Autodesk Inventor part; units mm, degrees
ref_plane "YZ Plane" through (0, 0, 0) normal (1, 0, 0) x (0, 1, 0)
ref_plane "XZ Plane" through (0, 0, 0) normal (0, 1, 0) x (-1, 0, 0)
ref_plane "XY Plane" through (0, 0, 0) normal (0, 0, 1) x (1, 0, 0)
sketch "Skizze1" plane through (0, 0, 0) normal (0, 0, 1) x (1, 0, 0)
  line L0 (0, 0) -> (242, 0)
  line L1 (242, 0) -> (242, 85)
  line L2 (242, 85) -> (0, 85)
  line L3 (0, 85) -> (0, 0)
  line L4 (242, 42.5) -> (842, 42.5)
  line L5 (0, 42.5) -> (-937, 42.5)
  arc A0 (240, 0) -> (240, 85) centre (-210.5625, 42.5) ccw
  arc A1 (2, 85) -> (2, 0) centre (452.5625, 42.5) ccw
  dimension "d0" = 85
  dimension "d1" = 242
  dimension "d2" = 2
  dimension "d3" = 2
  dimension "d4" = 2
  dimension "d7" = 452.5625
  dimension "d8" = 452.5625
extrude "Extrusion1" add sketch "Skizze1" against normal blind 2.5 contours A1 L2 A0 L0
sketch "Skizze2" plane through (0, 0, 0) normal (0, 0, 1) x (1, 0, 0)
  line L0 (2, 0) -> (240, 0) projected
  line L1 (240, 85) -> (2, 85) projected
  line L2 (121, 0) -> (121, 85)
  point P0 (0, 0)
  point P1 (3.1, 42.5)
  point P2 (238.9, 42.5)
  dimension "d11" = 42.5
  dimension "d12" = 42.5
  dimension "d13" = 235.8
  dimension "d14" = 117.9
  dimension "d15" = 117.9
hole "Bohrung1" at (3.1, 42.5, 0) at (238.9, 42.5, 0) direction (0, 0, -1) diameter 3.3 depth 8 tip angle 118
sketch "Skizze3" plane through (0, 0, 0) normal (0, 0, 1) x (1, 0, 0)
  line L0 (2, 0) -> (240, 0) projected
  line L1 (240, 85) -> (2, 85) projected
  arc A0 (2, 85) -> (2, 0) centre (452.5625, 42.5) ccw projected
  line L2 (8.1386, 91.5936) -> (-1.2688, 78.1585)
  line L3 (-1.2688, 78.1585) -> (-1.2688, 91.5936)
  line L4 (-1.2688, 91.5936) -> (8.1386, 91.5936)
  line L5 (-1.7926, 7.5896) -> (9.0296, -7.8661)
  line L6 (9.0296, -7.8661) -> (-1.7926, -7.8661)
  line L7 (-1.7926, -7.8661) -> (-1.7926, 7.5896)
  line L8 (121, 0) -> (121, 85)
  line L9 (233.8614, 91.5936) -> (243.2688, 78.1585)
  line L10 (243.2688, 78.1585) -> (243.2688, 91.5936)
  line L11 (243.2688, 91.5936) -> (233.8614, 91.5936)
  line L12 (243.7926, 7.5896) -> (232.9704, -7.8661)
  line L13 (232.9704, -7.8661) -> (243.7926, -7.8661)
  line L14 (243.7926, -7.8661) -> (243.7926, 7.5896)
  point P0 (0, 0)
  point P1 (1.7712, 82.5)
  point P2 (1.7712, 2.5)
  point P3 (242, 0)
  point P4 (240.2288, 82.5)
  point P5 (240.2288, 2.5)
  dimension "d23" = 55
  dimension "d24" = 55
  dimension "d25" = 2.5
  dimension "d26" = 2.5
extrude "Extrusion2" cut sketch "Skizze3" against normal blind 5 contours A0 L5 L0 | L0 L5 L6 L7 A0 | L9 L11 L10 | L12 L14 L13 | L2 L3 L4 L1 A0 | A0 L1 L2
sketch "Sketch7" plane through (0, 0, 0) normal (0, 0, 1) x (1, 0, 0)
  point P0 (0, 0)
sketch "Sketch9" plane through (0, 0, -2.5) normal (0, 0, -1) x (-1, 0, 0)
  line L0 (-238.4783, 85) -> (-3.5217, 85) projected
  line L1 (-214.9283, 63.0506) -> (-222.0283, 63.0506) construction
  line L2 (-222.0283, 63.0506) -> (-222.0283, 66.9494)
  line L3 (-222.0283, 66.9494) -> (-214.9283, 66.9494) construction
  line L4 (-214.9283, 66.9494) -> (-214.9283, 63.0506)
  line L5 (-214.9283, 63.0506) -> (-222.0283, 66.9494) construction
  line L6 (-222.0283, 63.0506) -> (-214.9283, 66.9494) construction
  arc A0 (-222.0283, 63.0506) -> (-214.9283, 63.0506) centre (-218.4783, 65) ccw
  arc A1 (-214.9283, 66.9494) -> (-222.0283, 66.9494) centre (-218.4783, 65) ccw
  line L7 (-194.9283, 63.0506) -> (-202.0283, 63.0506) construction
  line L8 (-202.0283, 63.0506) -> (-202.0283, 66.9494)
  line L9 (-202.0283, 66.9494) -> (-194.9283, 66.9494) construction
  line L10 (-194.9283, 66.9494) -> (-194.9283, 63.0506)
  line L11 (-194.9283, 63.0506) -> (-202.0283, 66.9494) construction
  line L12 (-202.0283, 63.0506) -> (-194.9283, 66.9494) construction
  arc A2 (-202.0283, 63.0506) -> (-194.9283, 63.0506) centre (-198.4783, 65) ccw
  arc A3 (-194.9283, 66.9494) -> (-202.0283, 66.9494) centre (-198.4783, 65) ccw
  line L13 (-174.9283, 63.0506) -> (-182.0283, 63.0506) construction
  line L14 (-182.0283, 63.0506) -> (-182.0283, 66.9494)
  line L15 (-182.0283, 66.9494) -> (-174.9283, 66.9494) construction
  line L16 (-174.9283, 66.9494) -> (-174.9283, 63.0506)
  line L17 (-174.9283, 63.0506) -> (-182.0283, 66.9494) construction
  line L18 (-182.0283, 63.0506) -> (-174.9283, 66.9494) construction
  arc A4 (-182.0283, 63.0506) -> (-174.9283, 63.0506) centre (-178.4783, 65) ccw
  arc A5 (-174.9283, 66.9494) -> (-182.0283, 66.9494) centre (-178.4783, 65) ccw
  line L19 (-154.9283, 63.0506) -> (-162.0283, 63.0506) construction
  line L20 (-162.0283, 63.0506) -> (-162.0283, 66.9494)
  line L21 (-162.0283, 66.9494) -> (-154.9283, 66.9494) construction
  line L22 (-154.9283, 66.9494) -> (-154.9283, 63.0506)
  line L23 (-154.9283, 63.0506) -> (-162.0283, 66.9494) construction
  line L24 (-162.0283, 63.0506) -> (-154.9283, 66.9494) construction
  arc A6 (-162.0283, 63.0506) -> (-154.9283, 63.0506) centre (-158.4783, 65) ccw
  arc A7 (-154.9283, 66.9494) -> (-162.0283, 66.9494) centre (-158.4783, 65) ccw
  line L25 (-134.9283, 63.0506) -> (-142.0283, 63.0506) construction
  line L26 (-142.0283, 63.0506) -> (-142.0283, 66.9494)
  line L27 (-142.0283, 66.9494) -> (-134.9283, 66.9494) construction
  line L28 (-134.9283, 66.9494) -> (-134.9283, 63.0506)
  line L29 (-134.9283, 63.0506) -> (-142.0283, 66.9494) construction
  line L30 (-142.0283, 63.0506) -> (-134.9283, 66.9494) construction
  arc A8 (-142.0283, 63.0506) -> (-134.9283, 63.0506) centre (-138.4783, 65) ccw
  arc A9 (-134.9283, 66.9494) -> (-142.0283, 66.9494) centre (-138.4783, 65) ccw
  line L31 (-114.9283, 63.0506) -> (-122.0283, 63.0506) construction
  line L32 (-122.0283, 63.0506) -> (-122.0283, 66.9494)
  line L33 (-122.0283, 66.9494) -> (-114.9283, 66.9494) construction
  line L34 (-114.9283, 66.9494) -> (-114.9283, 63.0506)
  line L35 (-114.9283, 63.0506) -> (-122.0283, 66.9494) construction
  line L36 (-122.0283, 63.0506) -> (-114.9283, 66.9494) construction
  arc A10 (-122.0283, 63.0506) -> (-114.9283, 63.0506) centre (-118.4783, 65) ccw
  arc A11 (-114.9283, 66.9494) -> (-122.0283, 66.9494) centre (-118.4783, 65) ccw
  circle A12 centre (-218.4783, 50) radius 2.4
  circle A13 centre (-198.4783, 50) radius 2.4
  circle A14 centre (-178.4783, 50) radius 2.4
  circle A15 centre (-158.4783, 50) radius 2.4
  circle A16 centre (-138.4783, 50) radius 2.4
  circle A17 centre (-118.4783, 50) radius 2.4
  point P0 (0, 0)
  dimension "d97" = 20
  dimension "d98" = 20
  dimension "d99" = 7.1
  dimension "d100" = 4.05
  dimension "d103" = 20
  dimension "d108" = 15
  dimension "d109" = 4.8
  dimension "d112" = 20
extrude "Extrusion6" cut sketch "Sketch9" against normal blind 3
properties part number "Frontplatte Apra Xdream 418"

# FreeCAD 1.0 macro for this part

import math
import FreeCAD as App
import Part
import Sketcher

V = App.Vector
Q = App.Units.Quantity


def add_polygon(sketch, points):
    """Adds a closed chain of lines whose ends are joined by coincident constraints."""
    first, n = sketch.GeometryCount, len(points)
    for a, b in zip(points, points[1:] + points[:1]):
        sketch.addGeometry(Part.LineSegment(App.Vector(*a, 0), App.Vector(*b, 0)), False)
    for i in range(n):
        sketch.addConstraint(Sketcher.Constraint("Coincident", first + i, 2, first + (i + 1) % n, 1))

doc = App.newDocument("Part")
body = doc.addObject("PartDesign::Body", "Body")

# Sketch on XY plane
sketch1 = body.newObject("Sketcher::SketchObject", "Sketch")
sketch1.AttachmentSupport = (doc.getObject("XY_Plane"), [""])
sketch1.MapMode = "FlatFace"
sketch1.addGeometry([
    Part.ArcOfCircle(Part.Circle(V(452.5625, 42.5, 0), V(0, 0, 1), 452.5625), math.radians(174.611431), math.radians(185.388569)),
    Part.LineSegment(V(2, 0, 0), V(240, 0, 0)),
    Part.ArcOfCircle(Part.Circle(V(-210.5625, 42.5, 0), V(0, 0, 1), 452.5625), math.radians(-5.388569), math.radians(5.388569)),
    Part.LineSegment(V(240, 85, 0), V(2, 85, 0)),
], False)
sketch1.addConstraint([
    Sketcher.Constraint("Coincident", 0, 2, 1, 1),
    Sketcher.Constraint("Coincident", 1, 2, 2, 1),
    Sketcher.Constraint("Coincident", 2, 2, 3, 1),
    Sketcher.Constraint("Coincident", 3, 2, 0, 1),
    Sketcher.Constraint("Horizontal", 1),
    Sketcher.Constraint("Horizontal", 3),
    Sketcher.Constraint("Equal", 0, 2),
    Sketcher.Constraint("PointOnObject", 1, 2, -1),
    Sketcher.Constraint("Horizontal", 0, 3, 2, 3),
    Sketcher.Constraint("Vertical", 1, 2, 2, 2),
    Sketcher.Constraint("DistanceX", -1, 1, 0, 2, 2.0),
    Sketcher.Constraint("DistanceY", -1, 1, 3, 2, 85.0),
    Sketcher.Constraint("Radius", 0, 452.5625),
    Sketcher.Constraint("DistanceX", 1, 1, 1, 2, 238.0),
])
pad1 = body.newObject("PartDesign::Pad", "Pad")
pad1.Profile = sketch1
pad1.Length = 2.5
pad1.Reversed = True

# Sketch on XY plane
sketch2 = body.newObject("Sketcher::SketchObject", "Sketch001")
sketch2.AttachmentSupport = (doc.getObject("XY_Plane"), [""])
sketch2.MapMode = "FlatFace"
sketch2.addGeometry([
    Part.Circle(V(3.1, 42.5, 0), V(0, 0, 1), 1.65),
    Part.Circle(V(238.9, 42.5, 0), V(0, 0, 1), 1.65),
], False)
sketch2.addConstraint([
    Sketcher.Constraint("Equal", 0, 1),
    Sketcher.Constraint("Horizontal", 0, 3, 1, 3),
    Sketcher.Constraint("Diameter", 0, 3.3),
    Sketcher.Constraint("DistanceX", -1, 1, 0, 3, 3.1),
    Sketcher.Constraint("DistanceY", -1, 1, 0, 3, 42.5),
    Sketcher.Constraint("DistanceX", -1, 1, 1, 3, 238.9),
])
doc.recompute()
hole = body.newObject("PartDesign::Hole", "Hole")
hole.Profile = sketch2
hole.ThreadType = "None"
hole.Diameter = 3.3
hole.DepthType = "Dimension"
hole.Depth = 8
hole.DrillPoint = "Angled"
hole.DrillPointAngle = 118

# Sketch on XY plane
sketch3 = body.newObject("Sketcher::SketchObject", "Sketch002")
sketch3.AttachmentSupport = (doc.getObject("XY_Plane"), [""])
sketch3.MapMode = "FlatFace"
add_polygon(sketch3, [(-1.7926, 7.5896), (-1.7926, -7.8661), (9.0296, -7.8661)])  # lines 0-2
add_polygon(sketch3, [(233.8614, 91.5936), (243.2688, 78.1585), (243.2688, 91.5936)])  # lines 3-5
add_polygon(sketch3, [(243.7926, 7.5896), (232.9704, -7.8661), (243.7926, -7.8661)])  # lines 6-8
add_polygon(sketch3, [(-1.2688, 78.1585), (8.1386, 91.5936), (-1.2688, 91.5936)])  # lines 9-11
sketch3.addConstraint([
    Sketcher.Constraint("Vertical", 0),
    Sketcher.Constraint("Horizontal", 1),
    Sketcher.Constraint("Vertical", 4),
    Sketcher.Constraint("Horizontal", 5),
    Sketcher.Constraint("Horizontal", 7),
    Sketcher.Constraint("Vertical", 8),
    Sketcher.Constraint("Horizontal", 10),
    Sketcher.Constraint("Vertical", 11),
    Sketcher.Constraint("Parallel", 2, 3),
    Sketcher.Constraint("Parallel", 6, 9),
    Sketcher.Constraint("Horizontal", 1, 2, 6, 2),
    Sketcher.Constraint("Horizontal", 2, 2, 8, 2),
    Sketcher.Constraint("Horizontal", 5, 2, 9, 2),
    Sketcher.Constraint("Horizontal", 3, 2, 11, 2),
    Sketcher.Constraint("Equal", 1, 7),
    Sketcher.Constraint("Angle", 3, Q("-55 deg")),
    Sketcher.Constraint("DistanceY", 4, 1, 4, 2, 13.435),
    Sketcher.Constraint("Distance", 2, 18.868),
    Sketcher.Constraint("DistanceY", 0, 2, -1, 1, 7.866),
    Sketcher.Constraint("DistanceY", 2, 2, 3, 2, 70.569),
    Sketcher.Constraint("DistanceX", 2, 2, 5, 2, 235.654),
    Sketcher.Constraint("DistanceX", 6, 2, 5, 2, 0.891),
    Sketcher.Constraint("DistanceX", 9, 2, 1, 2, 0.891),
    Sketcher.Constraint("DistanceX", 0, 2, -1, 1, 1.7926),
])
pocket1 = body.newObject("PartDesign::Pocket", "Pocket")
pocket1.Profile = sketch3
pocket1.Length = 5

# Sketch on XY plane
sketch4 = body.newObject("Sketcher::SketchObject", "Sketch003")
sketch4.AttachmentSupport = (doc.getObject("XY_Plane"), [""])
sketch4.MapMode = "FlatFace"
sketch4.AttachmentOffset = App.Placement(V(0, 0, -2.5), App.Rotation())
sketch4.addGeometry([
    Part.LineSegment(V(222.0283, 66.9494, 0), V(222.0283, 63.0506, 0)),  # 0
    Part.ArcOfCircle(Part.Circle(V(218.4783, 65, 0), V(0, 0, 1), 4.05002), math.radians(-151.227633), math.radians(-28.772367)),  # 1
    Part.LineSegment(V(214.9283, 63.0506, 0), V(214.9283, 66.9494, 0)),  # 2
    Part.ArcOfCircle(Part.Circle(V(218.4783, 65, 0), V(0, 0, 1), 4.05002), math.radians(28.772367), math.radians(151.227633)),  # 3
    Part.LineSegment(V(202.0283, 66.9494, 0), V(202.0283, 63.0506, 0)),  # 4
    Part.ArcOfCircle(Part.Circle(V(198.4783, 65, 0), V(0, 0, 1), 4.05002), math.radians(-151.227633), math.radians(-28.772367)),  # 5
    Part.LineSegment(V(194.9283, 63.0506, 0), V(194.9283, 66.9494, 0)),  # 6
    Part.ArcOfCircle(Part.Circle(V(198.4783, 65, 0), V(0, 0, 1), 4.05002), math.radians(28.772367), math.radians(151.227633)),  # 7
    Part.LineSegment(V(182.0283, 66.9494, 0), V(182.0283, 63.0506, 0)),  # 8
    Part.ArcOfCircle(Part.Circle(V(178.4783, 65, 0), V(0, 0, 1), 4.05002), math.radians(-151.227633), math.radians(-28.772367)),  # 9
    Part.LineSegment(V(174.9283, 63.0506, 0), V(174.9283, 66.9494, 0)),  # 10
    Part.ArcOfCircle(Part.Circle(V(178.4783, 65, 0), V(0, 0, 1), 4.05002), math.radians(28.772367), math.radians(151.227633)),  # 11
    Part.LineSegment(V(162.0283, 66.9494, 0), V(162.0283, 63.0506, 0)),  # 12
    Part.ArcOfCircle(Part.Circle(V(158.4783, 65, 0), V(0, 0, 1), 4.05002), math.radians(-151.227633), math.radians(-28.772367)),  # 13
    Part.LineSegment(V(154.9283, 63.0506, 0), V(154.9283, 66.9494, 0)),  # 14
    Part.ArcOfCircle(Part.Circle(V(158.4783, 65, 0), V(0, 0, 1), 4.05002), math.radians(28.772367), math.radians(151.227633)),  # 15
    Part.LineSegment(V(142.0283, 66.9494, 0), V(142.0283, 63.0506, 0)),  # 16
    Part.ArcOfCircle(Part.Circle(V(138.4783, 65, 0), V(0, 0, 1), 4.05002), math.radians(-151.227633), math.radians(-28.772367)),  # 17
    Part.LineSegment(V(134.9283, 63.0506, 0), V(134.9283, 66.9494, 0)),  # 18
    Part.ArcOfCircle(Part.Circle(V(138.4783, 65, 0), V(0, 0, 1), 4.05002), math.radians(28.772367), math.radians(151.227633)),  # 19
    Part.LineSegment(V(122.0283, 66.9494, 0), V(122.0283, 63.0506, 0)),  # 20
    Part.ArcOfCircle(Part.Circle(V(118.4783, 65, 0), V(0, 0, 1), 4.05002), math.radians(-151.227633), math.radians(-28.772367)),  # 21
    Part.LineSegment(V(114.9283, 63.0506, 0), V(114.9283, 66.9494, 0)),  # 22
    Part.ArcOfCircle(Part.Circle(V(118.4783, 65, 0), V(0, 0, 1), 4.05002), math.radians(28.772367), math.radians(151.227633)),  # 23
    Part.Circle(V(218.4783, 50, 0), V(0, 0, 1), 2.4),  # 24
    Part.Circle(V(198.4783, 50, 0), V(0, 0, 1), 2.4),  # 25
    Part.Circle(V(178.4783, 50, 0), V(0, 0, 1), 2.4),  # 26
    Part.Circle(V(158.4783, 50, 0), V(0, 0, 1), 2.4),  # 27
    Part.Circle(V(138.4783, 50, 0), V(0, 0, 1), 2.4),  # 28
    Part.Circle(V(118.4783, 50, 0), V(0, 0, 1), 2.4),  # 29
], False)
sketch4.addConstraint([
    Sketcher.Constraint("Coincident", 0, 2, 1, 2),
    Sketcher.Constraint("Coincident", 1, 1, 2, 1),
    Sketcher.Constraint("Coincident", 2, 2, 3, 2),
    Sketcher.Constraint("Coincident", 3, 1, 0, 1),
    Sketcher.Constraint("Coincident", 4, 2, 5, 2),
    Sketcher.Constraint("Coincident", 5, 1, 6, 1),
    Sketcher.Constraint("Coincident", 6, 2, 7, 2),
    Sketcher.Constraint("Coincident", 7, 1, 4, 1),
    Sketcher.Constraint("Coincident", 8, 2, 9, 2),
    Sketcher.Constraint("Coincident", 9, 1, 10, 1),
    Sketcher.Constraint("Coincident", 10, 2, 11, 2),
    Sketcher.Constraint("Coincident", 11, 1, 8, 1),
    Sketcher.Constraint("Coincident", 12, 2, 13, 2),
    Sketcher.Constraint("Coincident", 13, 1, 14, 1),
    Sketcher.Constraint("Coincident", 14, 2, 15, 2),
    Sketcher.Constraint("Coincident", 15, 1, 12, 1),
    Sketcher.Constraint("Coincident", 16, 2, 17, 2),
    Sketcher.Constraint("Coincident", 17, 1, 18, 1),
    Sketcher.Constraint("Coincident", 18, 2, 19, 2),
    Sketcher.Constraint("Coincident", 19, 1, 16, 1),
    Sketcher.Constraint("Coincident", 20, 2, 21, 2),
    Sketcher.Constraint("Coincident", 21, 1, 22, 1),
    Sketcher.Constraint("Coincident", 22, 2, 23, 2),
    Sketcher.Constraint("Coincident", 23, 1, 20, 1),
    Sketcher.Constraint("Vertical", 0),
    Sketcher.Constraint("Vertical", 2),
    Sketcher.Constraint("Vertical", 4),
    Sketcher.Constraint("Vertical", 6),
    Sketcher.Constraint("Vertical", 8),
    Sketcher.Constraint("Vertical", 10),
    Sketcher.Constraint("Vertical", 12),
    Sketcher.Constraint("Vertical", 14),
    Sketcher.Constraint("Vertical", 16),
    Sketcher.Constraint("Vertical", 18),
    Sketcher.Constraint("Vertical", 20),
    Sketcher.Constraint("Vertical", 22),
    Sketcher.Constraint("Coincident", 3, 3, 1, 3),
    Sketcher.Constraint("Coincident", 7, 3, 5, 3),
    Sketcher.Constraint("Coincident", 11, 3, 9, 3),
    Sketcher.Constraint("Coincident", 15, 3, 13, 3),
    Sketcher.Constraint("Coincident", 19, 3, 17, 3),
    Sketcher.Constraint("Coincident", 23, 3, 21, 3),
    Sketcher.Constraint("Equal", 1, 3),
    Sketcher.Constraint("Equal", 3, 5),
    Sketcher.Constraint("Equal", 5, 7),
    Sketcher.Constraint("Equal", 7, 9),
    Sketcher.Constraint("Equal", 9, 11),
    Sketcher.Constraint("Equal", 11, 13),
    Sketcher.Constraint("Equal", 13, 15),
    Sketcher.Constraint("Equal", 15, 17),
    Sketcher.Constraint("Equal", 17, 19),
    Sketcher.Constraint("Equal", 19, 21),
    Sketcher.Constraint("Equal", 21, 23),
    Sketcher.Constraint("Equal", 24, 25),
    Sketcher.Constraint("Equal", 25, 26),
    Sketcher.Constraint("Equal", 26, 27),
    Sketcher.Constraint("Equal", 27, 28),
    Sketcher.Constraint("Equal", 28, 29),
    Sketcher.Constraint("Horizontal", 3, 3, 5, 3),
    Sketcher.Constraint("Horizontal", 7, 3, 9, 3),
    Sketcher.Constraint("Horizontal", 11, 3, 13, 3),
    Sketcher.Constraint("Horizontal", 15, 3, 17, 3),
    Sketcher.Constraint("Horizontal", 19, 3, 21, 3),
    Sketcher.Constraint("Horizontal", 24, 3, 25, 3),
    Sketcher.Constraint("Horizontal", 25, 3, 26, 3),
    Sketcher.Constraint("Horizontal", 26, 3, 27, 3),
    Sketcher.Constraint("Horizontal", 27, 3, 28, 3),
    Sketcher.Constraint("Horizontal", 28, 3, 29, 3),
    Sketcher.Constraint("Horizontal", 0, 2, 1, 1),
    Sketcher.Constraint("Horizontal", 1, 1, 4, 2),
    Sketcher.Constraint("Horizontal", 4, 2, 5, 1),
    Sketcher.Constraint("Horizontal", 5, 1, 8, 2),
    Sketcher.Constraint("Horizontal", 8, 2, 9, 1),
    Sketcher.Constraint("Horizontal", 9, 1, 12, 2),
    Sketcher.Constraint("Horizontal", 12, 2, 13, 1),
    Sketcher.Constraint("Horizontal", 13, 1, 16, 2),
    Sketcher.Constraint("Horizontal", 16, 2, 17, 1),
    Sketcher.Constraint("Horizontal", 17, 1, 20, 2),
    Sketcher.Constraint("Horizontal", 20, 2, 21, 1),
    Sketcher.Constraint("Vertical", 3, 3, 24, 3),
    Sketcher.Constraint("Vertical", 7, 3, 25, 3),
    Sketcher.Constraint("Vertical", 11, 3, 26, 3),
    Sketcher.Constraint("Vertical", 15, 3, 27, 3),
    Sketcher.Constraint("Vertical", 19, 3, 28, 3),
    Sketcher.Constraint("Vertical", 23, 3, 29, 3),
    Sketcher.Constraint("Diameter", 24, 4.8),
    Sketcher.Constraint("Radius", 1, 4.05),
    Sketcher.Constraint("DistanceX", 5, 3, 1, 3, 20.0),
    Sketcher.Constraint("DistanceX", 9, 3, 5, 3, 20.0),
    Sketcher.Constraint("DistanceX", 13, 3, 9, 3, 20.0),
    Sketcher.Constraint("DistanceX", 17, 3, 13, 3, 20.0),
    Sketcher.Constraint("DistanceX", 21, 3, 17, 3, 20.0),
    Sketcher.Constraint("DistanceY", 24, 3, 1, 3, 15.0),
    Sketcher.Constraint("DistanceX", 1, 1, 0, 2, 7.1),
    Sketcher.Constraint("DistanceY", -1, 1, 1, 3, 65.0),
    Sketcher.Constraint("DistanceX", -1, 1, 1, 3, 218.4783),
])
pocket2 = body.newObject("PartDesign::Pocket", "Pocket001")
pocket2.Profile = sketch4
pocket2.Length = 3
pocket2.Reversed = True

doc.recompute()
